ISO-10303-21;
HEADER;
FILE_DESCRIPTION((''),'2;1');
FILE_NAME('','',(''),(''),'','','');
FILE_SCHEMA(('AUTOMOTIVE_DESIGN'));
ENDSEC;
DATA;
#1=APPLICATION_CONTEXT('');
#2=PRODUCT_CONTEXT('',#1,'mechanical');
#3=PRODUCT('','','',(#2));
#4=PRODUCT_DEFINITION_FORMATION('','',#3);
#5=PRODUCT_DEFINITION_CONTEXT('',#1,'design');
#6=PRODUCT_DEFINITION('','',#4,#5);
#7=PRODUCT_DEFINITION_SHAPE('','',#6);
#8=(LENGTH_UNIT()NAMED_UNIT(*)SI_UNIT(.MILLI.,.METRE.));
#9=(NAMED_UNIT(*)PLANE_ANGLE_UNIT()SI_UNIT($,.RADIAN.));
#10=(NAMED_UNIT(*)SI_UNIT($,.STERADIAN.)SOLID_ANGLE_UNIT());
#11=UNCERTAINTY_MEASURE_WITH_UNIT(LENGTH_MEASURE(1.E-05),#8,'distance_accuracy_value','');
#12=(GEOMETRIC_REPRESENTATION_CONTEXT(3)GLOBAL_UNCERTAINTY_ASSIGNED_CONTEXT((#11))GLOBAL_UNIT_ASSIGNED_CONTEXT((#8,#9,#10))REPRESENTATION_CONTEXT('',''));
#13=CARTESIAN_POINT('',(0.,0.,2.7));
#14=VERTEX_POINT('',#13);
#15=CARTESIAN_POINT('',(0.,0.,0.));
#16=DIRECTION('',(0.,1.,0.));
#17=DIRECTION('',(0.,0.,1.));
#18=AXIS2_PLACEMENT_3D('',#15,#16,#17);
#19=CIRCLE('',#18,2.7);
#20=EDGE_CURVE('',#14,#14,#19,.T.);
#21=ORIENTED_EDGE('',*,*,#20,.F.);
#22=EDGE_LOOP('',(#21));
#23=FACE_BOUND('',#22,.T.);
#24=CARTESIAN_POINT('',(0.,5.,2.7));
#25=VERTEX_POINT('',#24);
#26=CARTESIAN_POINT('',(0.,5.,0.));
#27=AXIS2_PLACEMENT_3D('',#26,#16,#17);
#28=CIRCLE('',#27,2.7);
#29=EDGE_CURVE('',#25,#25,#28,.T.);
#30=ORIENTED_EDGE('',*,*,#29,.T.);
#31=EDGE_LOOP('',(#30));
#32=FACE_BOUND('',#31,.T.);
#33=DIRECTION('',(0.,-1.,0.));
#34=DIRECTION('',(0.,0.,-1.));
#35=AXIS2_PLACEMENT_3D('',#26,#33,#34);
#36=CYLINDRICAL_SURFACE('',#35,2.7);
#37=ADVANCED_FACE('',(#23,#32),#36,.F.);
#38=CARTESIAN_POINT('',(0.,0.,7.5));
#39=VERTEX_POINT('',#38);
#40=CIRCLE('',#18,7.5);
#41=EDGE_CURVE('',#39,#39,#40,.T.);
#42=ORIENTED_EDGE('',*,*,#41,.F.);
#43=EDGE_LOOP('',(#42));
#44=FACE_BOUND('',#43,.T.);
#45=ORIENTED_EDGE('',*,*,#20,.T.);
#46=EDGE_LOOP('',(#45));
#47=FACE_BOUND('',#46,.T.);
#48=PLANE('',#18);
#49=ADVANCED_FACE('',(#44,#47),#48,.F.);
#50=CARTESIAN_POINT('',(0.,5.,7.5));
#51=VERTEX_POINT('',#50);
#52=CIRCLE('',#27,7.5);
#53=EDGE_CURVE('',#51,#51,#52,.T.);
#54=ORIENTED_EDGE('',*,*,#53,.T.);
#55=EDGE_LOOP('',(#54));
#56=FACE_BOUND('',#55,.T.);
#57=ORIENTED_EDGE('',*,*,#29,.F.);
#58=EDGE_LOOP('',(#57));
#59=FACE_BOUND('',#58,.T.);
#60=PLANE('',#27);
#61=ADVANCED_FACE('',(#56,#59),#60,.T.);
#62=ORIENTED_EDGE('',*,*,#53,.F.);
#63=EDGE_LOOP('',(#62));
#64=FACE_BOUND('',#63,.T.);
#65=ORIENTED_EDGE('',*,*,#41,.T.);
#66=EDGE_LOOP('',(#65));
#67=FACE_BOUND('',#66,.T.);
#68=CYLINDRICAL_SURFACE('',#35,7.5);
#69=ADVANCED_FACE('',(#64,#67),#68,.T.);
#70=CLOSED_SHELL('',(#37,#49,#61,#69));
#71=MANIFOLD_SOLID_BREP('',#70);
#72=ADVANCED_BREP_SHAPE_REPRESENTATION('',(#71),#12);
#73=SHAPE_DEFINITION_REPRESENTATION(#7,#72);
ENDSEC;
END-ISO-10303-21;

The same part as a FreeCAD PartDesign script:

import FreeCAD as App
import Part
import Sketcher
Q = App.Units.Quantity

doc = App.newDocument("Part")
body = doc.addObject("PartDesign::Body", "Body")

# Sketch on XZ plane
sketch1 = doc.addObject("Sketcher::SketchObject", "Sketch")
body.addObject(sketch1)
sketch1.AttachmentSupport = (doc.XZ_Plane, [""])
sketch1.MapMode = "FlatFace"
sketch1.addGeometry([
    Part.Circle(App.Vector(0, 0, 0), App.Vector(0, 0, 1), 7.5),
    Part.Circle(App.Vector(0, 0, 0), App.Vector(0, 0, 1), 2.7),
], False)
sketch1.addConstraint([
    Sketcher.Constraint("Coincident", 0, 3, -1, 1),
    Sketcher.Constraint("Coincident", 1, 3, -1, 1),
    Sketcher.Constraint("Diameter", 0, Q("15 mm")),
    Sketcher.Constraint("Diameter", 1, Q("5.4 mm")),
])
pad1 = doc.addObject("PartDesign::Pad", "Pad")
body.addObject(pad1)
pad1.Profile = sketch1
pad1.Length = 5
pad1.Reversed = True

doc.recompute()
